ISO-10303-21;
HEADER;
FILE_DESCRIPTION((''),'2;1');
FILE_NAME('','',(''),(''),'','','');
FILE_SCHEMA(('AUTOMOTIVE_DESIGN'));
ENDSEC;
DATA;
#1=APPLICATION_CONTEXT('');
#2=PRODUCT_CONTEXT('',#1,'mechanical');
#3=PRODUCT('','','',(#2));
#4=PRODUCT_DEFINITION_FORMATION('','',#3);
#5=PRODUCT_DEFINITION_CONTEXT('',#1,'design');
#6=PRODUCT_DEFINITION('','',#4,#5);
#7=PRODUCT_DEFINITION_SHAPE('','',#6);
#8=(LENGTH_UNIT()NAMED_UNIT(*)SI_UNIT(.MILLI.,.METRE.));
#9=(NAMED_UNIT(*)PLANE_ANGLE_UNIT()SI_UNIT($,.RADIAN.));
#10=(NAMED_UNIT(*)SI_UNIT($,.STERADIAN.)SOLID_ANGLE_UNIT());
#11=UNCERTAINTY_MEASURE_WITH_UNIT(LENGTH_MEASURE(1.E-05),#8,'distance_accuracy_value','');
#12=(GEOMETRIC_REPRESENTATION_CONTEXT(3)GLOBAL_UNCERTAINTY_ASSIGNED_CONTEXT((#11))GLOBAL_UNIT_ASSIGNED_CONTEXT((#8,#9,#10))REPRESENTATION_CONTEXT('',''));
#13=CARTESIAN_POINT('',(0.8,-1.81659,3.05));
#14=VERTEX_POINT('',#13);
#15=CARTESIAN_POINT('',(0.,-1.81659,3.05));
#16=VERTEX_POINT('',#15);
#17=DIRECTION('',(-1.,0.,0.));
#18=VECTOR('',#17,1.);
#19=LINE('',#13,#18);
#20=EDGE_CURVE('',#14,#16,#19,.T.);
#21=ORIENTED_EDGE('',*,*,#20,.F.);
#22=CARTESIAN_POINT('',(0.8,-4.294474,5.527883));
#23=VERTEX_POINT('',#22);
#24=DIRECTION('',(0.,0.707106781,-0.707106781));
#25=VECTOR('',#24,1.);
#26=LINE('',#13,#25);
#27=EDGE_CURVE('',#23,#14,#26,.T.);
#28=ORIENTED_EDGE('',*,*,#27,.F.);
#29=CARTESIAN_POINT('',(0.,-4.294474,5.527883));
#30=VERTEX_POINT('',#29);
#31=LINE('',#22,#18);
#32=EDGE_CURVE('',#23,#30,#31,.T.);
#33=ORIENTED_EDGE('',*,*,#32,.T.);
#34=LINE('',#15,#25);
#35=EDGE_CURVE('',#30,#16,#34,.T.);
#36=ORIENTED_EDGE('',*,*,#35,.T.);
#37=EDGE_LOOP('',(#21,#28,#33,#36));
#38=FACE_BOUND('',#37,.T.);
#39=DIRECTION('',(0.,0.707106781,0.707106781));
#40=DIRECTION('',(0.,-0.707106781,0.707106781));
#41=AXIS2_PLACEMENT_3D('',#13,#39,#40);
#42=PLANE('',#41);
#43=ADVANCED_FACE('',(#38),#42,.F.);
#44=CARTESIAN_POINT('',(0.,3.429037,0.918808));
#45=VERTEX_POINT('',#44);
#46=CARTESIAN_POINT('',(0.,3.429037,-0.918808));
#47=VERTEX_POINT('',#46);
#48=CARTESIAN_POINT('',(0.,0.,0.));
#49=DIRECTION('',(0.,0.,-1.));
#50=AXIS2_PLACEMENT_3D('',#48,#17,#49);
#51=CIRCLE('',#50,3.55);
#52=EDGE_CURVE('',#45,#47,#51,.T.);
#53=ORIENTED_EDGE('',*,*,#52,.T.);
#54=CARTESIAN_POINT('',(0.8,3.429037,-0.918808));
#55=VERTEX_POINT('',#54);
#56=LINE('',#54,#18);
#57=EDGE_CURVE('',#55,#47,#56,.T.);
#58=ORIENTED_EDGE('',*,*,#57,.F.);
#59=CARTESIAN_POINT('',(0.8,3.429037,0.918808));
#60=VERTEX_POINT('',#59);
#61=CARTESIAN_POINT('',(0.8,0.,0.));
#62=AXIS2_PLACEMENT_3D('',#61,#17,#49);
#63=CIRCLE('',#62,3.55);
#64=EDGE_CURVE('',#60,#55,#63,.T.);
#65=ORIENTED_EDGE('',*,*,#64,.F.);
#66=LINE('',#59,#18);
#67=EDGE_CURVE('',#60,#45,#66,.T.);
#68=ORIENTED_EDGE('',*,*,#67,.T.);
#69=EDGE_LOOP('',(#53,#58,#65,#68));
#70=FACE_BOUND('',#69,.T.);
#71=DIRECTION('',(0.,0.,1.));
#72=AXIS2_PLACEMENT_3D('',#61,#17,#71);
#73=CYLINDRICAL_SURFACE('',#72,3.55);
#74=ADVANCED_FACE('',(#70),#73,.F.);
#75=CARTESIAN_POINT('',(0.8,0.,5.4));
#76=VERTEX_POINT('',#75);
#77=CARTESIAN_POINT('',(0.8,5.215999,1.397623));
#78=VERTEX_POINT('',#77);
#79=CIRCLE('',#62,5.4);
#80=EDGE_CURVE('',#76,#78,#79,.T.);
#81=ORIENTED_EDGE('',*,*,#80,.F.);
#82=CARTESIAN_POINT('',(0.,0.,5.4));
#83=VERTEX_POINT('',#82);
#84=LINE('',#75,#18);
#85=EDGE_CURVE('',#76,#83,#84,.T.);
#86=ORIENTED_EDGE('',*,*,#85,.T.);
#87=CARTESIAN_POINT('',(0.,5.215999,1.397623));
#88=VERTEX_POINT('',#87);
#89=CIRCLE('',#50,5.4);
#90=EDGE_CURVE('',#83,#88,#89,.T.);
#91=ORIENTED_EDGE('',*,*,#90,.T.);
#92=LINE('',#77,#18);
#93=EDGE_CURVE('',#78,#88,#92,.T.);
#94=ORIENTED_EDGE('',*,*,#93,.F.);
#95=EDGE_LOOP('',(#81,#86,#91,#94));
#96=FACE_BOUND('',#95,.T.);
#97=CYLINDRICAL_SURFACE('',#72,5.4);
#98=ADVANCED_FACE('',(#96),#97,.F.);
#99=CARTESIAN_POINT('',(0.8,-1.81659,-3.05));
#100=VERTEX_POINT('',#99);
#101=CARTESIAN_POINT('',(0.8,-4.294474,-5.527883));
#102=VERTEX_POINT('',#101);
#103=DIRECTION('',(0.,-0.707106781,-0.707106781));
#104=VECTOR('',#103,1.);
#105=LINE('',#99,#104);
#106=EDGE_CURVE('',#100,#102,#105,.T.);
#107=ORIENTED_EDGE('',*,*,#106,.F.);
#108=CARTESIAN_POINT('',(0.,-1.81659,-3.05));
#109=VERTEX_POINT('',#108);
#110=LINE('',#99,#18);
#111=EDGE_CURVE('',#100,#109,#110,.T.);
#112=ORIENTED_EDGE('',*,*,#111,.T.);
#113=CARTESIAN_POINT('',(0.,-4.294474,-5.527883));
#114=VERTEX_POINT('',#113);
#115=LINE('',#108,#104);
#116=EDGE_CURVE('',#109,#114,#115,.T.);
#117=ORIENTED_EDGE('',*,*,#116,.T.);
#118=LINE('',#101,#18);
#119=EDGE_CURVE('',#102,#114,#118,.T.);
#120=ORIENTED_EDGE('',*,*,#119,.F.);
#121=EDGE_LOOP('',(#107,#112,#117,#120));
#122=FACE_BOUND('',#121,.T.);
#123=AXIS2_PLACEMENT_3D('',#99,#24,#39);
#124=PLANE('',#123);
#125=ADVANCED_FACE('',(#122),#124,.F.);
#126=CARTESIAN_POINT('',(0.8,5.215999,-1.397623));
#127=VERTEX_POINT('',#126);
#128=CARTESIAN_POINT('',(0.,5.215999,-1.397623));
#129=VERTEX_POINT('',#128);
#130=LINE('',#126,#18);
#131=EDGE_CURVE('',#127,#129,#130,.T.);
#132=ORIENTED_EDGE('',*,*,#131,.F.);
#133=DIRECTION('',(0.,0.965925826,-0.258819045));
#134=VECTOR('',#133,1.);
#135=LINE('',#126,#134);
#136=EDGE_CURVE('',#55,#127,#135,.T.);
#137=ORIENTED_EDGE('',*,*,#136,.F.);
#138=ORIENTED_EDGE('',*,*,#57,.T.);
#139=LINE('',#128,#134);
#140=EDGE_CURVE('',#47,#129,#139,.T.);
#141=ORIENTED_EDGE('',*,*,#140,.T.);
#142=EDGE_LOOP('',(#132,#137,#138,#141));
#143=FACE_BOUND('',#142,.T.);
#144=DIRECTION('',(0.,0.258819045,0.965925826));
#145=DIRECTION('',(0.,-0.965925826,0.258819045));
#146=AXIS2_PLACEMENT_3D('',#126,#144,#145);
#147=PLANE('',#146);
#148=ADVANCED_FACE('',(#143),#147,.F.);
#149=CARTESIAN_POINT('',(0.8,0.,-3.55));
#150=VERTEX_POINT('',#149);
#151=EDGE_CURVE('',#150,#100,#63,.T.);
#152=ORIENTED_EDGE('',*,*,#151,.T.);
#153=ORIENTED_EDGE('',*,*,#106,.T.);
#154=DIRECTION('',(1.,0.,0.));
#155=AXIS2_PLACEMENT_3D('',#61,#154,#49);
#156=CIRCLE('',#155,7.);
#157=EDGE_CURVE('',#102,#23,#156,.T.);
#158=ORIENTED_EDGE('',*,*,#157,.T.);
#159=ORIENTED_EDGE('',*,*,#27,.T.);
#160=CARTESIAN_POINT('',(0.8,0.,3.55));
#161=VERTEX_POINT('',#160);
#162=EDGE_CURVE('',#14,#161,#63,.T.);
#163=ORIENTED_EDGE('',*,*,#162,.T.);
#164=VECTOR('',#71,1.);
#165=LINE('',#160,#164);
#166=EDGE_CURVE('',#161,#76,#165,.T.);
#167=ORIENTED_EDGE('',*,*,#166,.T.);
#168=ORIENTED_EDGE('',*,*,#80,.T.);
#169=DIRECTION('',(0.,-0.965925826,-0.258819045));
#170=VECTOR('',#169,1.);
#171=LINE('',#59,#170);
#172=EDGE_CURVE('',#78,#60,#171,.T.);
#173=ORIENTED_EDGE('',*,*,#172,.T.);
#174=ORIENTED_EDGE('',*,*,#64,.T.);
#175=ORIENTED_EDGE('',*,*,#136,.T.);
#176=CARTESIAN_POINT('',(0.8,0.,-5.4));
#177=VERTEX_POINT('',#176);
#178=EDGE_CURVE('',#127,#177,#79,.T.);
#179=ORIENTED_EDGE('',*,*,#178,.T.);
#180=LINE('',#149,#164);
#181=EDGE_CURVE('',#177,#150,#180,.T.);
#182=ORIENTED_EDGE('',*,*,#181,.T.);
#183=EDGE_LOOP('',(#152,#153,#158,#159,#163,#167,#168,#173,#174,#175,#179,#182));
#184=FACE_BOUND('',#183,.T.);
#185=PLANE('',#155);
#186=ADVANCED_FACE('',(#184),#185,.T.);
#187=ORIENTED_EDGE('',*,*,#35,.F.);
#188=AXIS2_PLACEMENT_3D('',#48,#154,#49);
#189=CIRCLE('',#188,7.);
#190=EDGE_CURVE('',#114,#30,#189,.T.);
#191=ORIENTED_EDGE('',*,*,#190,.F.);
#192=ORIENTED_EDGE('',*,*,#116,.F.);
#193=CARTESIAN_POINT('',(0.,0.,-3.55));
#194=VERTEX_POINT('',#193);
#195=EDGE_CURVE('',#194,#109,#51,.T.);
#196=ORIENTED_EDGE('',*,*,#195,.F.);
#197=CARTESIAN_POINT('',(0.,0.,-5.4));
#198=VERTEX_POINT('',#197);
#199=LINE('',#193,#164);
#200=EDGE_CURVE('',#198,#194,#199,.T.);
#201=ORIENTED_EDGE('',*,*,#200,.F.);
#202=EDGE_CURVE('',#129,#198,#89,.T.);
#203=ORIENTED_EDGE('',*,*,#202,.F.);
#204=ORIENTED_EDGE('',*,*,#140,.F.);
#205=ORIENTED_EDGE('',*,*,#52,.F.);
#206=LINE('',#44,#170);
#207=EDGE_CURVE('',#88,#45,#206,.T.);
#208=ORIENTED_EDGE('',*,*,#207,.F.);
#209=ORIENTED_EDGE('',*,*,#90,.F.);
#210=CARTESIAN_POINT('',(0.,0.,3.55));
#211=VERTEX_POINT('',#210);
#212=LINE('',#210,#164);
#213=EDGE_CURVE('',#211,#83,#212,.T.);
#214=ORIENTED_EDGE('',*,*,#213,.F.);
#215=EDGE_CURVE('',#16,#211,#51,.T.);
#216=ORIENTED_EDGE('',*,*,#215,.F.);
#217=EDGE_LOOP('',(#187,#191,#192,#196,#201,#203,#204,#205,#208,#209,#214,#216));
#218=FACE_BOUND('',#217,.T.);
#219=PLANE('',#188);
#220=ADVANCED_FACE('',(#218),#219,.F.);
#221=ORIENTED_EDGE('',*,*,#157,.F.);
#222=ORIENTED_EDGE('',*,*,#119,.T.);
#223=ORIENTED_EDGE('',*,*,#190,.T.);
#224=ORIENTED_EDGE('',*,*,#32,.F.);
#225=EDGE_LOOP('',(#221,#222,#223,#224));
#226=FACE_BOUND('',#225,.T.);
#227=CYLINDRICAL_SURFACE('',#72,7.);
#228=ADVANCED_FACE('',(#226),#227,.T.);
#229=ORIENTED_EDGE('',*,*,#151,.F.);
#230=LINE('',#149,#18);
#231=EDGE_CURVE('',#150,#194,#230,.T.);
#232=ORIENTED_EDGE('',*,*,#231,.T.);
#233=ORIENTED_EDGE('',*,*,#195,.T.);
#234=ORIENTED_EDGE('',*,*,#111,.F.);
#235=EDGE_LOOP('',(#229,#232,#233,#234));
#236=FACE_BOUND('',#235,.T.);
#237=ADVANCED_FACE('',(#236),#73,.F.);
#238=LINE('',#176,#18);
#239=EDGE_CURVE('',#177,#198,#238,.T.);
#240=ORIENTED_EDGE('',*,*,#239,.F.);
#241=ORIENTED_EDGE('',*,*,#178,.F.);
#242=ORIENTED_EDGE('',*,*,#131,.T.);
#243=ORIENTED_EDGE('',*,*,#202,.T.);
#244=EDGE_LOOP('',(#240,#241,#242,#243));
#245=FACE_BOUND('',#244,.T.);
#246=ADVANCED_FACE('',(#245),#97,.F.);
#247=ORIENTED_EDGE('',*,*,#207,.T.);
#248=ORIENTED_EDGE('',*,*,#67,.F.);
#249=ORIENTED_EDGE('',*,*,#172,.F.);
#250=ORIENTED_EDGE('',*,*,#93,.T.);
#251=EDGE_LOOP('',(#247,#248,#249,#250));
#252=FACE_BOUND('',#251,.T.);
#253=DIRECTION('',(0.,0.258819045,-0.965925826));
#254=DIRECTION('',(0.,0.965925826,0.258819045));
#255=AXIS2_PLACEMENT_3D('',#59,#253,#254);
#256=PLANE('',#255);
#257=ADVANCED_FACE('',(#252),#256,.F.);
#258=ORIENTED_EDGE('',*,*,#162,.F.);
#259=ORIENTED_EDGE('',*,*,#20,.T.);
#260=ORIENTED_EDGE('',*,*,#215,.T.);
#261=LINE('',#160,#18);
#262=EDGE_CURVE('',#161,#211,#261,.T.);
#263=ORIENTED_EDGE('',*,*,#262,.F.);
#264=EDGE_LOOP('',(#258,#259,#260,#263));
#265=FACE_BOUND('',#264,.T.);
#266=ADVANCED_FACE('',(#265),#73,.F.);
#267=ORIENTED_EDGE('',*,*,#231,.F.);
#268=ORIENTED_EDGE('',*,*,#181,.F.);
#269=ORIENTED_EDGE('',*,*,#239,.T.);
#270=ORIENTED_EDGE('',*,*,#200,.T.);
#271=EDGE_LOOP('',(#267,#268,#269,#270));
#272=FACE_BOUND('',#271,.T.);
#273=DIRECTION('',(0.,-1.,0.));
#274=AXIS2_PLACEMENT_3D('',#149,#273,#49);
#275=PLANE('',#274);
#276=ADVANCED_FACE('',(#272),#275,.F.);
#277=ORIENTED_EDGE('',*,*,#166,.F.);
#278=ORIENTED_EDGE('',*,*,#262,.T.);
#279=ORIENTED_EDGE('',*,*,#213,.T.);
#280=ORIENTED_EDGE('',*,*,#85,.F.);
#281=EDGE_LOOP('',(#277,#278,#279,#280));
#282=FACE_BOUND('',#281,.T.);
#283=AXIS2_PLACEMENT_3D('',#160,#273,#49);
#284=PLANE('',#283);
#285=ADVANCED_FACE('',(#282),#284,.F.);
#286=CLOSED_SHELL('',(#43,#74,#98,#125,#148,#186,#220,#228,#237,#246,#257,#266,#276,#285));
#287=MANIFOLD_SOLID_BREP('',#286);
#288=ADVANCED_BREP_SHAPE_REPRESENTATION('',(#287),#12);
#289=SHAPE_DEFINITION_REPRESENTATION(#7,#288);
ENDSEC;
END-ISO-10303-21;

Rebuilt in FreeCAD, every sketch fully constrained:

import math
import FreeCAD as App
import Part
import Sketcher

V = App.Vector
Q = App.Units.Quantity

doc = App.newDocument("Part")
body = doc.addObject("PartDesign::Body", "Body")

# Sketch on YZ plane
sketch1 = body.newObject("Sketcher::SketchObject", "Sketch")
sketch1.AttachmentSupport = (doc.getObject("YZ_Plane"), [""])
sketch1.MapMode = "FlatFace"
sketch1.addGeometry(Part.LineSegment(V(0, 3.5, 0), V(0, 5.4, 0)), False)
sketch1.addGeometry(Part.ArcOfCircle(Part.Circle(V(0, 0, 0), V(0, 0, 1), 5.4), math.radians(15), math.radians(90)), False)
sketch1.addGeometry(Part.LineSegment(V(5.2, 1.4, 0), V(3.4, 0.9, 0)), False)
sketch1.addGeometry(Part.ArcOfCircle(Part.Circle(V(0, 0, 0), V(0, 0, 1), 3.5), math.radians(-15), math.radians(15)), False)
sketch1.addGeometry(Part.LineSegment(V(3.4, -0.9, 0), V(5.2, -1.4, 0)), False)
sketch1.addGeometry(Part.ArcOfCircle(Part.Circle(V(0, 0, 0), V(0, 0, 1), 5.4), math.radians(-90), math.radians(-15)), False)
sketch1.addGeometry(Part.LineSegment(V(0, -5.4, 0), V(0, -3.5, 0)), False)
sketch1.addGeometry(Part.ArcOfCircle(Part.Circle(V(0, 0, 0), V(0, 0, 1), 3.5), math.radians(-121), math.radians(-90)), False)
sketch1.addGeometry(Part.LineSegment(V(-1.8, -3, 0), V(-4.3, -5.5, 0)), False)
sketch1.addGeometry(Part.ArcOfCircle(Part.Circle(V(0, 0, 0), V(0, 0, 1), 7), math.radians(-128), math.radians(128)), False)
sketch1.addGeometry(Part.LineSegment(V(-4.3, 5.5, 0), V(-1.8, 3, 0)), False)
sketch1.addGeometry(Part.ArcOfCircle(Part.Circle(V(0, 0, 0), V(0, 0, 1), 3.5), math.radians(90), math.radians(121)), False)
sketch1.addConstraint(Sketcher.Constraint("Coincident", 0, 2, 1, 2))
sketch1.addConstraint(Sketcher.Constraint("Coincident", 1, 1, 2, 1))
sketch1.addConstraint(Sketcher.Constraint("Coincident", 2, 2, 3, 2))
sketch1.addConstraint(Sketcher.Constraint("Coincident", 3, 1, 4, 1))
sketch1.addConstraint(Sketcher.Constraint("Coincident", 4, 2, 5, 2))
sketch1.addConstraint(Sketcher.Constraint("Coincident", 5, 1, 6, 1))
sketch1.addConstraint(Sketcher.Constraint("Coincident", 6, 2, 7, 2))
sketch1.addConstraint(Sketcher.Constraint("Coincident", 7, 1, 8, 1))
sketch1.addConstraint(Sketcher.Constraint("Coincident", 8, 2, 9, 1))
sketch1.addConstraint(Sketcher.Constraint("Coincident", 9, 2, 10, 1))
sketch1.addConstraint(Sketcher.Constraint("Coincident", 10, 2, 11, 2))
sketch1.addConstraint(Sketcher.Constraint("Coincident", 11, 1, 0, 1))
sketch1.addConstraint(Sketcher.Constraint("Vertical", 0))
sketch1.addConstraint(Sketcher.Constraint("Vertical", 6))
sketch1.addConstraint(Sketcher.Constraint("Coincident", 1, 3, -1, 1))
sketch1.addConstraint(Sketcher.Constraint("Coincident", 3, 3, -1, 1))
sketch1.addConstraint(Sketcher.Constraint("Coincident", 5, 3, -1, 1))
sketch1.addConstraint(Sketcher.Constraint("Coincident", 7, 3, -1, 1))
sketch1.addConstraint(Sketcher.Constraint("Coincident", 9, 3, -1, 1))
sketch1.addConstraint(Sketcher.Constraint("Coincident", 11, 3, -1, 1))
sketch1.addConstraint(Sketcher.Constraint("Equal", 1, 5))
sketch1.addConstraint(Sketcher.Constraint("Equal", 3, 7))
sketch1.addConstraint(Sketcher.Constraint("Equal", 7, 11))
sketch1.addConstraint(Sketcher.Constraint("PointOnObject", 0, 2, -2))
sketch1.addConstraint(Sketcher.Constraint("PointOnObject", 5, 1, -2))
sketch1.addConstraint(Sketcher.Constraint("Perpendicular", 8, 10))
sketch1.addConstraint(Sketcher.Constraint("Vertical", 2, 2, 3, 1))
sketch1.addConstraint(Sketcher.Constraint("Vertical", 1, 1, 4, 2))
sketch1.addConstraint(Sketcher.Constraint("Vertical", 8, 2, 9, 2))
sketch1.addConstraint(Sketcher.Constraint("Vertical", 7, 1, 10, 2))
sketch1.addConstraint(Sketcher.Constraint("Radius", 9, 7.0))
sketch1.addConstraint(Sketcher.Constraint("Radius", 1, 5.4))
sketch1.addConstraint(Sketcher.Constraint("Angle", 2, Q("-165 deg")))
sketch1.addConstraint(Sketcher.Constraint("Radius", 3, 3.55))
sketch1.addConstraint(Sketcher.Constraint("DistanceY", 6, 2, 7, 1, 0.5))
sketch1.addConstraint(Sketcher.Constraint("DistanceX", -1, 1, 1, 1, 5.215999))
pad1 = body.newObject("PartDesign::Pad", "Pad")
pad1.Profile = sketch1
pad1.Length = 0.8

doc.recompute()
